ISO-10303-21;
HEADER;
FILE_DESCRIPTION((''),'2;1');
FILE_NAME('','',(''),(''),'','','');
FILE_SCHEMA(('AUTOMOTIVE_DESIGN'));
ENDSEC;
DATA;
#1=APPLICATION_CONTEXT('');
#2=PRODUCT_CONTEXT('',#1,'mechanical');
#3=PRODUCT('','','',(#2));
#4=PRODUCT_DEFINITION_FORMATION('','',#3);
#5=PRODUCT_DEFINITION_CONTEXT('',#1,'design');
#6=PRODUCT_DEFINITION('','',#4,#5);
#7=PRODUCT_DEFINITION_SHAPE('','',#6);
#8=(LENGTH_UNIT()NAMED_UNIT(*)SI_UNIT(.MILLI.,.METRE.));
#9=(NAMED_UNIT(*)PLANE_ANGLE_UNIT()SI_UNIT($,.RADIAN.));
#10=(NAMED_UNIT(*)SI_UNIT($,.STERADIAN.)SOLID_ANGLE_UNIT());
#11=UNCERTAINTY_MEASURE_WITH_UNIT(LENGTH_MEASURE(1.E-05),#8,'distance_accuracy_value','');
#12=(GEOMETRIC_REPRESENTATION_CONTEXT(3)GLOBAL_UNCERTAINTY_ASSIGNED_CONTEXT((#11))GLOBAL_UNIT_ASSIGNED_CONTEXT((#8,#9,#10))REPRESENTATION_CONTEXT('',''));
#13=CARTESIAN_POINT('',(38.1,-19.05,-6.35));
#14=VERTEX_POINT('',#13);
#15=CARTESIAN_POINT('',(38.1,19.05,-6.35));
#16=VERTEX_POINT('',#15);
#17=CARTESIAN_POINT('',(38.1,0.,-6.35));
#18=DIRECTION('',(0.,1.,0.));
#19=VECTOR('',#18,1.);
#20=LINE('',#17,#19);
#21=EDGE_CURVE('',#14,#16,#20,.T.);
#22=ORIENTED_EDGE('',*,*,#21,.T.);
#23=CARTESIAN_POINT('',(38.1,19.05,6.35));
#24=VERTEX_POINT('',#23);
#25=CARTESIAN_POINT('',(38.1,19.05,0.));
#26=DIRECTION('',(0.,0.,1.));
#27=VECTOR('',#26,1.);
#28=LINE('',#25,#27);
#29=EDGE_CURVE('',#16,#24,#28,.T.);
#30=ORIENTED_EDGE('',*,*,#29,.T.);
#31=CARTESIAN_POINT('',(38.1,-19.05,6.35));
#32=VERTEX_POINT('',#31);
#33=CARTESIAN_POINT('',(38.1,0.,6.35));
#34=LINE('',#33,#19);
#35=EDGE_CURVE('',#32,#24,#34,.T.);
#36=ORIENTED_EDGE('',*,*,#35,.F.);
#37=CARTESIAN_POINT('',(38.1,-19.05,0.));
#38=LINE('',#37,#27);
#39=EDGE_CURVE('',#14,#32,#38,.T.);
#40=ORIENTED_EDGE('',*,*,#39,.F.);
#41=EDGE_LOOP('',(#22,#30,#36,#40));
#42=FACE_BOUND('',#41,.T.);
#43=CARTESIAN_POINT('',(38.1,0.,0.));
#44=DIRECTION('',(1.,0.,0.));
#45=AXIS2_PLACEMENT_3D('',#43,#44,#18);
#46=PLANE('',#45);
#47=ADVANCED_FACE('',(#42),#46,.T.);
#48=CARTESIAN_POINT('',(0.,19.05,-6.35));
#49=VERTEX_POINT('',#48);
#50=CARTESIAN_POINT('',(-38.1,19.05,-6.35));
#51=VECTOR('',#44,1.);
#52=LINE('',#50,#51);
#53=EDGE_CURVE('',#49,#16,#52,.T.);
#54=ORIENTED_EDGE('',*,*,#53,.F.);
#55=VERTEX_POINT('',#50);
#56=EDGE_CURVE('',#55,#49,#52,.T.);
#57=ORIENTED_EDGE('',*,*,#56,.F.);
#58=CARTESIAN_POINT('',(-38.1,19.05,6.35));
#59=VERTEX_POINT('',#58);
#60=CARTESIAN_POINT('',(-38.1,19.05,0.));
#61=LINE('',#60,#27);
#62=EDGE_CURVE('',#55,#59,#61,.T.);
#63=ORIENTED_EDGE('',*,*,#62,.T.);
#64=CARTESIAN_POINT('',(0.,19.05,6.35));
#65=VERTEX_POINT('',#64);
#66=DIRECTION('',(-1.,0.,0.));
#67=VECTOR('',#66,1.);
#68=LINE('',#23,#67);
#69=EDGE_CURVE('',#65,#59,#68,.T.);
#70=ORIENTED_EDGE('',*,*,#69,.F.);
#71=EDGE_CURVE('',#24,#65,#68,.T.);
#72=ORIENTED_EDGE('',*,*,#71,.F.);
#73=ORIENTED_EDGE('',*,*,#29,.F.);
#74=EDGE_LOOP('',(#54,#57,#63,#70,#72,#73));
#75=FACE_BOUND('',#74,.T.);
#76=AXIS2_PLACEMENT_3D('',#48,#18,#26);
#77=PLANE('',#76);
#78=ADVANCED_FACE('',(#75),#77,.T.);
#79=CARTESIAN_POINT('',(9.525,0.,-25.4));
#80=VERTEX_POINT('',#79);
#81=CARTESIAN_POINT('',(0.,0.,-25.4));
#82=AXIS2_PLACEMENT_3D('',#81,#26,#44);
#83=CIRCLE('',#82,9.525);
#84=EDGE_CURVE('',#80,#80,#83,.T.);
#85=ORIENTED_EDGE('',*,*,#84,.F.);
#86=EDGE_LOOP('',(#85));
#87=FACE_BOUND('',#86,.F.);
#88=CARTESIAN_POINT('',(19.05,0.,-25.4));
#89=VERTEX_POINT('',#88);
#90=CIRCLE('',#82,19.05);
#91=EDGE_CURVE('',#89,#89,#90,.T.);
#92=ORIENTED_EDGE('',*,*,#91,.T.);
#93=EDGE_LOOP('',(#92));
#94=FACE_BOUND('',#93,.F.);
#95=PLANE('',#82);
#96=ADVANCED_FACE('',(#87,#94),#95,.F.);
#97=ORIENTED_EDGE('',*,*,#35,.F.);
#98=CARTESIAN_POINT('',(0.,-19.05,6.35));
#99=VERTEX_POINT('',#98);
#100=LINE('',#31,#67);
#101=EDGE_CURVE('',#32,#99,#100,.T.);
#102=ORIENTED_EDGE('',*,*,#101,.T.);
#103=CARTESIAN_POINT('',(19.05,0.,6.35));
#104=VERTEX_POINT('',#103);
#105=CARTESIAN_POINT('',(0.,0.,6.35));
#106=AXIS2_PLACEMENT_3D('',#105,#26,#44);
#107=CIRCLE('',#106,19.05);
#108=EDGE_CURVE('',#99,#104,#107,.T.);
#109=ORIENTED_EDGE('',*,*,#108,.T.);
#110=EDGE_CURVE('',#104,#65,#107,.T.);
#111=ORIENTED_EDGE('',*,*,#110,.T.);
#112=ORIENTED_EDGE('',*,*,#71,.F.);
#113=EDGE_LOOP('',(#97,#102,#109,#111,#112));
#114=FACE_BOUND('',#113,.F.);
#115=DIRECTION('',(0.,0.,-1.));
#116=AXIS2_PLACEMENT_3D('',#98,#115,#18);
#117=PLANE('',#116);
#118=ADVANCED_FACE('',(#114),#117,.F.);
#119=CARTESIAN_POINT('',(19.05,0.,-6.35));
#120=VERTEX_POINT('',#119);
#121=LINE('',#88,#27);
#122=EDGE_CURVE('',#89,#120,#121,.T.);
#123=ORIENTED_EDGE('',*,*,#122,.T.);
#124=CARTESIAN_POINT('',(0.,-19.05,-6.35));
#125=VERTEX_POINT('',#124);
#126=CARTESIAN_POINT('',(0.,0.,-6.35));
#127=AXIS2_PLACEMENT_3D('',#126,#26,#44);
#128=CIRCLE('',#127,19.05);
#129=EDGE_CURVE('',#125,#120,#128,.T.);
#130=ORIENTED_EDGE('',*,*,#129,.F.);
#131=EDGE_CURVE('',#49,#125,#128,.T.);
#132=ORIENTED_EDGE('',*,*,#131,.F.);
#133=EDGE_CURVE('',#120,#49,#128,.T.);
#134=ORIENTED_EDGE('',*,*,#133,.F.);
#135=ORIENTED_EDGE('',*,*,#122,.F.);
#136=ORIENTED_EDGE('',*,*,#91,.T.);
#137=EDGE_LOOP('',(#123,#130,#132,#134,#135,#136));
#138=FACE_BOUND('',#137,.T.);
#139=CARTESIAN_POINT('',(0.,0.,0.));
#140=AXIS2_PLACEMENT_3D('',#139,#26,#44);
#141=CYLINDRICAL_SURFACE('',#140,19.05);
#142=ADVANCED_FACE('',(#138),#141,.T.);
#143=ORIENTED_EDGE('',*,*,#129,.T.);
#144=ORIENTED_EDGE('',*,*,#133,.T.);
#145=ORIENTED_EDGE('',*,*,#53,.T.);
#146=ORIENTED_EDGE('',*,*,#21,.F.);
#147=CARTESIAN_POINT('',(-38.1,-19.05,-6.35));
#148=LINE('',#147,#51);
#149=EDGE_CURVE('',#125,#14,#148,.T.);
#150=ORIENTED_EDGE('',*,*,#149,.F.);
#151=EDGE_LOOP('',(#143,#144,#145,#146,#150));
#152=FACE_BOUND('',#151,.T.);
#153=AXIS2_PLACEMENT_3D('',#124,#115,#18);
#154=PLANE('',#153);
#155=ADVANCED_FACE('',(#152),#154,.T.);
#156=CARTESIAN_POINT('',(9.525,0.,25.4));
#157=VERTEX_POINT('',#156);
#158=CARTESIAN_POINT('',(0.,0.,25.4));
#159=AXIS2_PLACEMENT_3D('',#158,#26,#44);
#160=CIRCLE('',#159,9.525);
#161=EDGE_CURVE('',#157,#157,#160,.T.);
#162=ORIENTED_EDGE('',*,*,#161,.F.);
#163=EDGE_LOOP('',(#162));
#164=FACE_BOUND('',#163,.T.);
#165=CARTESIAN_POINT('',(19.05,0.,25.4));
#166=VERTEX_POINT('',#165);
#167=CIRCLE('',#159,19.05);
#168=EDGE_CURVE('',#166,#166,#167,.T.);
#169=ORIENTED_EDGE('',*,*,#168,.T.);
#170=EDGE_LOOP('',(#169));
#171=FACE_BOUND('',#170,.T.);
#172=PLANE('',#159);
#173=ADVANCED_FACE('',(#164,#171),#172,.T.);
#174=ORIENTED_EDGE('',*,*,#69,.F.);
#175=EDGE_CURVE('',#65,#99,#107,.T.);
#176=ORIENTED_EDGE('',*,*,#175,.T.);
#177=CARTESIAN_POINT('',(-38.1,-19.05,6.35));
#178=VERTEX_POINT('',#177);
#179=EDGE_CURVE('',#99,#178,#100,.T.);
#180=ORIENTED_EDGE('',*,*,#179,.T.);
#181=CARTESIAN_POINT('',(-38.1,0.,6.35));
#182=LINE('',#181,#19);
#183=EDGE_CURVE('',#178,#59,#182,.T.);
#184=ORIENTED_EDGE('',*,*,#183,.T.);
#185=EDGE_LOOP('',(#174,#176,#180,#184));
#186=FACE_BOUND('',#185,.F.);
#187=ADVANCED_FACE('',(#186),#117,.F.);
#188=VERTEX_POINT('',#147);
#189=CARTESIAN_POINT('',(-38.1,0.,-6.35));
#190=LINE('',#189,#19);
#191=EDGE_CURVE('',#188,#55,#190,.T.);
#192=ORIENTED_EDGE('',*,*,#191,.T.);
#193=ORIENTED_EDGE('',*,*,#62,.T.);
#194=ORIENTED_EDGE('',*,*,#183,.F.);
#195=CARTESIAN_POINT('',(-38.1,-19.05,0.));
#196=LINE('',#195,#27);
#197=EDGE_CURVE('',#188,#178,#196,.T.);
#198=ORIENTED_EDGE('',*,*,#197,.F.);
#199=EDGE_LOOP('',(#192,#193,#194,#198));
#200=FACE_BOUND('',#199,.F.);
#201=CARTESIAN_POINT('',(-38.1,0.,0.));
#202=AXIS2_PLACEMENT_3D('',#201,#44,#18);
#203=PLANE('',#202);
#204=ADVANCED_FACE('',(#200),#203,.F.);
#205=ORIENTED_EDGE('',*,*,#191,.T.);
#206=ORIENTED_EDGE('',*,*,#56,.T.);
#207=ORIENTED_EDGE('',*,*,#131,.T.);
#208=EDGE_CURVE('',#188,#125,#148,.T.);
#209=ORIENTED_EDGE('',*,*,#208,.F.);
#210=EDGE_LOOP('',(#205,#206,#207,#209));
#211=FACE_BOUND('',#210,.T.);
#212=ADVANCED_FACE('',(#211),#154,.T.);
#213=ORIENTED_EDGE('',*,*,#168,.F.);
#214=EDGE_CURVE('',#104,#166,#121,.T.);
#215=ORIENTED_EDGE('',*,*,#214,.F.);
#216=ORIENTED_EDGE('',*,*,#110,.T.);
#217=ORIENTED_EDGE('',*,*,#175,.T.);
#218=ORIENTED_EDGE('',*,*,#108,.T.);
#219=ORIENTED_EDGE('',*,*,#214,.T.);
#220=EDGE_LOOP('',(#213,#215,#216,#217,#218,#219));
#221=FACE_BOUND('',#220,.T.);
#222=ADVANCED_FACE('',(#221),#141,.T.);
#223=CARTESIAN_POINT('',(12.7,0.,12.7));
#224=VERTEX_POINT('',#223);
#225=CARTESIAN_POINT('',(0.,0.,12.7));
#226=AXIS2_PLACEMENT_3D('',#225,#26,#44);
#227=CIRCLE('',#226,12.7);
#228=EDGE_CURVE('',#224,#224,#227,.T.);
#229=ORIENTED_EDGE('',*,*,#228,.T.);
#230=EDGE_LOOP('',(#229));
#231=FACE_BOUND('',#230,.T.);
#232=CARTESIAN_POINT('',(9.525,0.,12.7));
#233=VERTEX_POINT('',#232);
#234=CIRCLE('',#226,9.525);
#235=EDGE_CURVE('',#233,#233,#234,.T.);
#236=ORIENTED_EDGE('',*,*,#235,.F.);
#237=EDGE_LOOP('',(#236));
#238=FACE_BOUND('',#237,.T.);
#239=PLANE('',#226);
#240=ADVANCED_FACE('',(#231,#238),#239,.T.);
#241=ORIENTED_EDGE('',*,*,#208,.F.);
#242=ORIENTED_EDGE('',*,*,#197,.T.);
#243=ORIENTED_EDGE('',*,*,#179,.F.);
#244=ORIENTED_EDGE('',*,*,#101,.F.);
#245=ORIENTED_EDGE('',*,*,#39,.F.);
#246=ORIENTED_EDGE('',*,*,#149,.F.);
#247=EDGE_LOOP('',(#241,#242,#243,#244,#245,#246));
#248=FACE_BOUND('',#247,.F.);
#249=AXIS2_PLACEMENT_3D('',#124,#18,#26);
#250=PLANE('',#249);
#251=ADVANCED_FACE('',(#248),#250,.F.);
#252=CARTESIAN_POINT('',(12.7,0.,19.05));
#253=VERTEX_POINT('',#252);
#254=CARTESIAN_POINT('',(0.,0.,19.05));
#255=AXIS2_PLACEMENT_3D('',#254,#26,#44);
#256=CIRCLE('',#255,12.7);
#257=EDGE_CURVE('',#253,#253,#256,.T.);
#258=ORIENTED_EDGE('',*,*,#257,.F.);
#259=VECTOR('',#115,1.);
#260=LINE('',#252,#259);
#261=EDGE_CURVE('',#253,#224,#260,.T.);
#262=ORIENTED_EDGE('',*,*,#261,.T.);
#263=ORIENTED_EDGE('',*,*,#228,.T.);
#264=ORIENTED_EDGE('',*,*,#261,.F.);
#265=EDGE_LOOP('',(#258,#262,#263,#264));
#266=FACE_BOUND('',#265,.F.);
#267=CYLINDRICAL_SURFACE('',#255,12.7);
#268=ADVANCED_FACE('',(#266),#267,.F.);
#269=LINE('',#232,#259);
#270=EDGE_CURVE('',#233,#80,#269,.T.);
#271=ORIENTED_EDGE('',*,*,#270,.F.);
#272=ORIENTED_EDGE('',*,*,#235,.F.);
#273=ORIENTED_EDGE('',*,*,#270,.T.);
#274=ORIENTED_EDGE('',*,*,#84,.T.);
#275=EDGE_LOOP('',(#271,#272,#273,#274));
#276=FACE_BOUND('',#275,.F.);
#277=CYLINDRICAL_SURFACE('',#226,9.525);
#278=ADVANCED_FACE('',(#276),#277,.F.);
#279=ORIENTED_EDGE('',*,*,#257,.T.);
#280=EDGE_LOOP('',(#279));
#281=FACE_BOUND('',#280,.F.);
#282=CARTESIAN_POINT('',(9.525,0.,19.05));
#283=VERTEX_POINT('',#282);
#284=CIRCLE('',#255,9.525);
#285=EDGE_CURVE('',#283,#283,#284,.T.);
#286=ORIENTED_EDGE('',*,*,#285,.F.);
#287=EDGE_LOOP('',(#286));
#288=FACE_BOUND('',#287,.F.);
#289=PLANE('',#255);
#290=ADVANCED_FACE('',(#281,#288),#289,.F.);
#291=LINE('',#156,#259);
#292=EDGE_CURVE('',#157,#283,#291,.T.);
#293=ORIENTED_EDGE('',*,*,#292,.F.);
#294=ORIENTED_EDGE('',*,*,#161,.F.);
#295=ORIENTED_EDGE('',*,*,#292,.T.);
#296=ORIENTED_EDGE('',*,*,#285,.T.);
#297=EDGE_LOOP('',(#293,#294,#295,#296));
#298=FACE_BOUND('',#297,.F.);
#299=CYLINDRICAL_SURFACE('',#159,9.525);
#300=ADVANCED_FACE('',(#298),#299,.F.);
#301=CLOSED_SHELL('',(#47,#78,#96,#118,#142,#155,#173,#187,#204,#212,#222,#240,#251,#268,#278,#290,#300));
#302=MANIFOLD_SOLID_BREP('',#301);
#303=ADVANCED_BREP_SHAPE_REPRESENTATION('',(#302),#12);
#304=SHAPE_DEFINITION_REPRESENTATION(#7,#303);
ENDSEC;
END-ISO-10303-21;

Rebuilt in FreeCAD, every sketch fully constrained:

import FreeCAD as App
import Part
import Sketcher
from FreeCAD import Vector
Q = App.Units.Quantity


def add_polygon(sketch, points):
    """Adds a closed chain of lines whose ends are joined by coincident constraints."""
    first, n = sketch.GeometryCount, len(points)
    for a, b in zip(points, points[1:] + points[:1]):
        sketch.addGeometry(Part.LineSegment(App.Vector(*a, 0), App.Vector(*b, 0)), False)
    for i in range(n):
        sketch.addConstraint(Sketcher.Constraint("Coincident", first + i, 2, first + (i + 1) % n, 1))

doc = App.newDocument("Part")
params = doc.addObject("Spreadsheet::Sheet", "Params")
for row, (alias, value) in enumerate([
    ("sketch1_diameter", "1.5 in"),
    ("pad1_length", "2 in"),
    ("sketch2_diameter", "0.75 in"),
    ("pocket1_length", "0.25 in"),
    ("sketch3_diameter", "1 in"),
    ("pocket2_length", "0.25 in"),
    ("sketch4_diameter", "0.75 in"),
    ("sketch5_width", "1.5 in"),
    ("sketch5_height", "0.5 in"),
    ("pad2_length", "3 in"),
    ("sketch6_diameter", "0.75 in"),
], start=1):
    params.set(f"A{row}", alias)
    params.set(f"B{row}", "=" + value)
    params.setAlias(f"B{row}", alias)

body = doc.addObject("PartDesign::Body", "Body")

# Sketch on XY plane
sketch1 = body.newObject("Sketcher::SketchObject", "Sketch")
sketch1.AttachmentSupport = (doc.getObject("XY_Plane"), [""])
sketch1.MapMode = "FlatFace"
sketch1.addGeometry(Part.Circle(Vector(0, 0, 0), Vector(0, 0, 1), 19), False)
sketch1.addConstraint([
    Sketcher.Constraint("Coincident", 0, 3, -1, 1),
    Sketcher.Constraint("Diameter", 0, Q("1.5 in")),
])
sketch1.setExpression("Constraints[1]", "Params.sketch1_diameter")
pad1 = body.newObject("PartDesign::Pad", "Pad")
pad1.Profile = sketch1
pad1.setExpression("Length", "Params.pad1_length")
pad1.Midplane = True

# Sketch on XY plane
sketch2 = body.newObject("Sketcher::SketchObject", "Sketch001")
sketch2.AttachmentSupport = (doc.getObject("XY_Plane"), [""])
sketch2.MapMode = "FlatFace"
sketch2.AttachmentOffset = App.Placement(Vector(0, 0, 1 * 25.4), App.Rotation())
sketch2.addGeometry(Part.Circle(Vector(0, 0, 0), Vector(0, 0, 1), 10), False)
sketch2.addConstraint([
    Sketcher.Constraint("Coincident", 0, 3, -1, 1),
    Sketcher.Constraint("Diameter", 0, Q("0.75 in")),
])
sketch2.setExpression("Constraints[1]", "Params.sketch2_diameter")
pocket1 = body.newObject("PartDesign::Pocket", "Pocket")
pocket1.Profile = sketch2
pocket1.setExpression("Length", "Params.pocket1_length")

# Sketch on XY plane
sketch3 = body.newObject("Sketcher::SketchObject", "Sketch002")
sketch3.AttachmentSupport = (doc.getObject("XY_Plane"), [""])
sketch3.MapMode = "FlatFace"
sketch3.AttachmentOffset = App.Placement(Vector(0, 0, 0.75 * 25.4), App.Rotation())
sketch3.addGeometry(Part.Circle(Vector(0, 0, 0), Vector(0, 0, 1), 13), False)
sketch3.addConstraint([
    Sketcher.Constraint("Coincident", 0, 3, -1, 1),
    Sketcher.Constraint("Diameter", 0, Q("1 in")),
])
sketch3.setExpression("Constraints[1]", "Params.sketch3_diameter")
pocket2 = body.newObject("PartDesign::Pocket", "Pocket001")
pocket2.Profile = sketch3
pocket2.setExpression("Length", "Params.pocket2_length")

# Sketch on XY plane
sketch4 = body.newObject("Sketcher::SketchObject", "Sketch003")
sketch4.AttachmentSupport = (doc.getObject("XY_Plane"), [""])
sketch4.MapMode = "FlatFace"
sketch4.AttachmentOffset = App.Placement(Vector(0, 0, 0.5 * 25.4), App.Rotation())
sketch4.addGeometry(Part.Circle(Vector(0, 0, 0), Vector(0, 0, 1), 10), False)
sketch4.addConstraint([
    Sketcher.Constraint("Coincident", 0, 3, -1, 1),
    Sketcher.Constraint("Diameter", 0, Q("0.75 in")),
])
sketch4.setExpression("Constraints[1]", "Params.sketch4_diameter")
pocket3 = body.newObject("PartDesign::Pocket", "Pocket002")
pocket3.Profile = sketch4
pocket3.Type = "ThroughAll"

# Sketch on YZ plane
sketch5 = body.newObject("Sketcher::SketchObject", "Sketch004")
sketch5.AttachmentSupport = (doc.getObject("YZ_Plane"), [""])
sketch5.MapMode = "FlatFace"
add_polygon(sketch5, [(-19, 6), (-19, -6), (19, -6), (19, 6)])  # lines 0-3
sketch5.addConstraint([
    Sketcher.Constraint("Vertical", 0),
    Sketcher.Constraint("Horizontal", 1),
    Sketcher.Constraint("Vertical", 2),
    Sketcher.Constraint("Horizontal", 3),
    Sketcher.Constraint("Symmetric", 0, 2, 2, 2, -1, 1),
    Sketcher.Constraint("DistanceX", 1, 1, 1, 2, Q("1.5 in")),
    Sketcher.Constraint("DistanceY", 0, 2, 0, 1, Q("0.5 in")),
])
sketch5.setExpression("Constraints[9]", "Params.sketch5_width")
sketch5.setExpression("Constraints[10]", "Params.sketch5_height")
pad2 = body.newObject("PartDesign::Pad", "Pad001")
pad2.Profile = sketch5
pad2.setExpression("Length", "Params.pad2_length")
pad2.Midplane = True

# Sketch on XY plane
sketch6 = body.newObject("Sketcher::SketchObject", "Sketch005")
sketch6.AttachmentSupport = (doc.getObject("XY_Plane"), [""])
sketch6.MapMode = "FlatFace"
sketch6.AttachmentOffset = App.Placement(Vector(0, 0, 0.25 * 25.4), App.Rotation())
sketch6.addGeometry(Part.Circle(Vector(0, 0, 0), Vector(0, 0, 1), 10), False)
sketch6.addConstraint([
    Sketcher.Constraint("Coincident", 0, 3, -1, 1),
    Sketcher.Constraint("Diameter", 0, Q("0.75 in")),
])
sketch6.setExpression("Constraints[1]", "Params.sketch6_diameter")
pocket4 = body.newObject("PartDesign::Pocket", "Pocket003")
pocket4.Profile = sketch6
pocket4.Type = "ThroughAll"

doc.recompute()
